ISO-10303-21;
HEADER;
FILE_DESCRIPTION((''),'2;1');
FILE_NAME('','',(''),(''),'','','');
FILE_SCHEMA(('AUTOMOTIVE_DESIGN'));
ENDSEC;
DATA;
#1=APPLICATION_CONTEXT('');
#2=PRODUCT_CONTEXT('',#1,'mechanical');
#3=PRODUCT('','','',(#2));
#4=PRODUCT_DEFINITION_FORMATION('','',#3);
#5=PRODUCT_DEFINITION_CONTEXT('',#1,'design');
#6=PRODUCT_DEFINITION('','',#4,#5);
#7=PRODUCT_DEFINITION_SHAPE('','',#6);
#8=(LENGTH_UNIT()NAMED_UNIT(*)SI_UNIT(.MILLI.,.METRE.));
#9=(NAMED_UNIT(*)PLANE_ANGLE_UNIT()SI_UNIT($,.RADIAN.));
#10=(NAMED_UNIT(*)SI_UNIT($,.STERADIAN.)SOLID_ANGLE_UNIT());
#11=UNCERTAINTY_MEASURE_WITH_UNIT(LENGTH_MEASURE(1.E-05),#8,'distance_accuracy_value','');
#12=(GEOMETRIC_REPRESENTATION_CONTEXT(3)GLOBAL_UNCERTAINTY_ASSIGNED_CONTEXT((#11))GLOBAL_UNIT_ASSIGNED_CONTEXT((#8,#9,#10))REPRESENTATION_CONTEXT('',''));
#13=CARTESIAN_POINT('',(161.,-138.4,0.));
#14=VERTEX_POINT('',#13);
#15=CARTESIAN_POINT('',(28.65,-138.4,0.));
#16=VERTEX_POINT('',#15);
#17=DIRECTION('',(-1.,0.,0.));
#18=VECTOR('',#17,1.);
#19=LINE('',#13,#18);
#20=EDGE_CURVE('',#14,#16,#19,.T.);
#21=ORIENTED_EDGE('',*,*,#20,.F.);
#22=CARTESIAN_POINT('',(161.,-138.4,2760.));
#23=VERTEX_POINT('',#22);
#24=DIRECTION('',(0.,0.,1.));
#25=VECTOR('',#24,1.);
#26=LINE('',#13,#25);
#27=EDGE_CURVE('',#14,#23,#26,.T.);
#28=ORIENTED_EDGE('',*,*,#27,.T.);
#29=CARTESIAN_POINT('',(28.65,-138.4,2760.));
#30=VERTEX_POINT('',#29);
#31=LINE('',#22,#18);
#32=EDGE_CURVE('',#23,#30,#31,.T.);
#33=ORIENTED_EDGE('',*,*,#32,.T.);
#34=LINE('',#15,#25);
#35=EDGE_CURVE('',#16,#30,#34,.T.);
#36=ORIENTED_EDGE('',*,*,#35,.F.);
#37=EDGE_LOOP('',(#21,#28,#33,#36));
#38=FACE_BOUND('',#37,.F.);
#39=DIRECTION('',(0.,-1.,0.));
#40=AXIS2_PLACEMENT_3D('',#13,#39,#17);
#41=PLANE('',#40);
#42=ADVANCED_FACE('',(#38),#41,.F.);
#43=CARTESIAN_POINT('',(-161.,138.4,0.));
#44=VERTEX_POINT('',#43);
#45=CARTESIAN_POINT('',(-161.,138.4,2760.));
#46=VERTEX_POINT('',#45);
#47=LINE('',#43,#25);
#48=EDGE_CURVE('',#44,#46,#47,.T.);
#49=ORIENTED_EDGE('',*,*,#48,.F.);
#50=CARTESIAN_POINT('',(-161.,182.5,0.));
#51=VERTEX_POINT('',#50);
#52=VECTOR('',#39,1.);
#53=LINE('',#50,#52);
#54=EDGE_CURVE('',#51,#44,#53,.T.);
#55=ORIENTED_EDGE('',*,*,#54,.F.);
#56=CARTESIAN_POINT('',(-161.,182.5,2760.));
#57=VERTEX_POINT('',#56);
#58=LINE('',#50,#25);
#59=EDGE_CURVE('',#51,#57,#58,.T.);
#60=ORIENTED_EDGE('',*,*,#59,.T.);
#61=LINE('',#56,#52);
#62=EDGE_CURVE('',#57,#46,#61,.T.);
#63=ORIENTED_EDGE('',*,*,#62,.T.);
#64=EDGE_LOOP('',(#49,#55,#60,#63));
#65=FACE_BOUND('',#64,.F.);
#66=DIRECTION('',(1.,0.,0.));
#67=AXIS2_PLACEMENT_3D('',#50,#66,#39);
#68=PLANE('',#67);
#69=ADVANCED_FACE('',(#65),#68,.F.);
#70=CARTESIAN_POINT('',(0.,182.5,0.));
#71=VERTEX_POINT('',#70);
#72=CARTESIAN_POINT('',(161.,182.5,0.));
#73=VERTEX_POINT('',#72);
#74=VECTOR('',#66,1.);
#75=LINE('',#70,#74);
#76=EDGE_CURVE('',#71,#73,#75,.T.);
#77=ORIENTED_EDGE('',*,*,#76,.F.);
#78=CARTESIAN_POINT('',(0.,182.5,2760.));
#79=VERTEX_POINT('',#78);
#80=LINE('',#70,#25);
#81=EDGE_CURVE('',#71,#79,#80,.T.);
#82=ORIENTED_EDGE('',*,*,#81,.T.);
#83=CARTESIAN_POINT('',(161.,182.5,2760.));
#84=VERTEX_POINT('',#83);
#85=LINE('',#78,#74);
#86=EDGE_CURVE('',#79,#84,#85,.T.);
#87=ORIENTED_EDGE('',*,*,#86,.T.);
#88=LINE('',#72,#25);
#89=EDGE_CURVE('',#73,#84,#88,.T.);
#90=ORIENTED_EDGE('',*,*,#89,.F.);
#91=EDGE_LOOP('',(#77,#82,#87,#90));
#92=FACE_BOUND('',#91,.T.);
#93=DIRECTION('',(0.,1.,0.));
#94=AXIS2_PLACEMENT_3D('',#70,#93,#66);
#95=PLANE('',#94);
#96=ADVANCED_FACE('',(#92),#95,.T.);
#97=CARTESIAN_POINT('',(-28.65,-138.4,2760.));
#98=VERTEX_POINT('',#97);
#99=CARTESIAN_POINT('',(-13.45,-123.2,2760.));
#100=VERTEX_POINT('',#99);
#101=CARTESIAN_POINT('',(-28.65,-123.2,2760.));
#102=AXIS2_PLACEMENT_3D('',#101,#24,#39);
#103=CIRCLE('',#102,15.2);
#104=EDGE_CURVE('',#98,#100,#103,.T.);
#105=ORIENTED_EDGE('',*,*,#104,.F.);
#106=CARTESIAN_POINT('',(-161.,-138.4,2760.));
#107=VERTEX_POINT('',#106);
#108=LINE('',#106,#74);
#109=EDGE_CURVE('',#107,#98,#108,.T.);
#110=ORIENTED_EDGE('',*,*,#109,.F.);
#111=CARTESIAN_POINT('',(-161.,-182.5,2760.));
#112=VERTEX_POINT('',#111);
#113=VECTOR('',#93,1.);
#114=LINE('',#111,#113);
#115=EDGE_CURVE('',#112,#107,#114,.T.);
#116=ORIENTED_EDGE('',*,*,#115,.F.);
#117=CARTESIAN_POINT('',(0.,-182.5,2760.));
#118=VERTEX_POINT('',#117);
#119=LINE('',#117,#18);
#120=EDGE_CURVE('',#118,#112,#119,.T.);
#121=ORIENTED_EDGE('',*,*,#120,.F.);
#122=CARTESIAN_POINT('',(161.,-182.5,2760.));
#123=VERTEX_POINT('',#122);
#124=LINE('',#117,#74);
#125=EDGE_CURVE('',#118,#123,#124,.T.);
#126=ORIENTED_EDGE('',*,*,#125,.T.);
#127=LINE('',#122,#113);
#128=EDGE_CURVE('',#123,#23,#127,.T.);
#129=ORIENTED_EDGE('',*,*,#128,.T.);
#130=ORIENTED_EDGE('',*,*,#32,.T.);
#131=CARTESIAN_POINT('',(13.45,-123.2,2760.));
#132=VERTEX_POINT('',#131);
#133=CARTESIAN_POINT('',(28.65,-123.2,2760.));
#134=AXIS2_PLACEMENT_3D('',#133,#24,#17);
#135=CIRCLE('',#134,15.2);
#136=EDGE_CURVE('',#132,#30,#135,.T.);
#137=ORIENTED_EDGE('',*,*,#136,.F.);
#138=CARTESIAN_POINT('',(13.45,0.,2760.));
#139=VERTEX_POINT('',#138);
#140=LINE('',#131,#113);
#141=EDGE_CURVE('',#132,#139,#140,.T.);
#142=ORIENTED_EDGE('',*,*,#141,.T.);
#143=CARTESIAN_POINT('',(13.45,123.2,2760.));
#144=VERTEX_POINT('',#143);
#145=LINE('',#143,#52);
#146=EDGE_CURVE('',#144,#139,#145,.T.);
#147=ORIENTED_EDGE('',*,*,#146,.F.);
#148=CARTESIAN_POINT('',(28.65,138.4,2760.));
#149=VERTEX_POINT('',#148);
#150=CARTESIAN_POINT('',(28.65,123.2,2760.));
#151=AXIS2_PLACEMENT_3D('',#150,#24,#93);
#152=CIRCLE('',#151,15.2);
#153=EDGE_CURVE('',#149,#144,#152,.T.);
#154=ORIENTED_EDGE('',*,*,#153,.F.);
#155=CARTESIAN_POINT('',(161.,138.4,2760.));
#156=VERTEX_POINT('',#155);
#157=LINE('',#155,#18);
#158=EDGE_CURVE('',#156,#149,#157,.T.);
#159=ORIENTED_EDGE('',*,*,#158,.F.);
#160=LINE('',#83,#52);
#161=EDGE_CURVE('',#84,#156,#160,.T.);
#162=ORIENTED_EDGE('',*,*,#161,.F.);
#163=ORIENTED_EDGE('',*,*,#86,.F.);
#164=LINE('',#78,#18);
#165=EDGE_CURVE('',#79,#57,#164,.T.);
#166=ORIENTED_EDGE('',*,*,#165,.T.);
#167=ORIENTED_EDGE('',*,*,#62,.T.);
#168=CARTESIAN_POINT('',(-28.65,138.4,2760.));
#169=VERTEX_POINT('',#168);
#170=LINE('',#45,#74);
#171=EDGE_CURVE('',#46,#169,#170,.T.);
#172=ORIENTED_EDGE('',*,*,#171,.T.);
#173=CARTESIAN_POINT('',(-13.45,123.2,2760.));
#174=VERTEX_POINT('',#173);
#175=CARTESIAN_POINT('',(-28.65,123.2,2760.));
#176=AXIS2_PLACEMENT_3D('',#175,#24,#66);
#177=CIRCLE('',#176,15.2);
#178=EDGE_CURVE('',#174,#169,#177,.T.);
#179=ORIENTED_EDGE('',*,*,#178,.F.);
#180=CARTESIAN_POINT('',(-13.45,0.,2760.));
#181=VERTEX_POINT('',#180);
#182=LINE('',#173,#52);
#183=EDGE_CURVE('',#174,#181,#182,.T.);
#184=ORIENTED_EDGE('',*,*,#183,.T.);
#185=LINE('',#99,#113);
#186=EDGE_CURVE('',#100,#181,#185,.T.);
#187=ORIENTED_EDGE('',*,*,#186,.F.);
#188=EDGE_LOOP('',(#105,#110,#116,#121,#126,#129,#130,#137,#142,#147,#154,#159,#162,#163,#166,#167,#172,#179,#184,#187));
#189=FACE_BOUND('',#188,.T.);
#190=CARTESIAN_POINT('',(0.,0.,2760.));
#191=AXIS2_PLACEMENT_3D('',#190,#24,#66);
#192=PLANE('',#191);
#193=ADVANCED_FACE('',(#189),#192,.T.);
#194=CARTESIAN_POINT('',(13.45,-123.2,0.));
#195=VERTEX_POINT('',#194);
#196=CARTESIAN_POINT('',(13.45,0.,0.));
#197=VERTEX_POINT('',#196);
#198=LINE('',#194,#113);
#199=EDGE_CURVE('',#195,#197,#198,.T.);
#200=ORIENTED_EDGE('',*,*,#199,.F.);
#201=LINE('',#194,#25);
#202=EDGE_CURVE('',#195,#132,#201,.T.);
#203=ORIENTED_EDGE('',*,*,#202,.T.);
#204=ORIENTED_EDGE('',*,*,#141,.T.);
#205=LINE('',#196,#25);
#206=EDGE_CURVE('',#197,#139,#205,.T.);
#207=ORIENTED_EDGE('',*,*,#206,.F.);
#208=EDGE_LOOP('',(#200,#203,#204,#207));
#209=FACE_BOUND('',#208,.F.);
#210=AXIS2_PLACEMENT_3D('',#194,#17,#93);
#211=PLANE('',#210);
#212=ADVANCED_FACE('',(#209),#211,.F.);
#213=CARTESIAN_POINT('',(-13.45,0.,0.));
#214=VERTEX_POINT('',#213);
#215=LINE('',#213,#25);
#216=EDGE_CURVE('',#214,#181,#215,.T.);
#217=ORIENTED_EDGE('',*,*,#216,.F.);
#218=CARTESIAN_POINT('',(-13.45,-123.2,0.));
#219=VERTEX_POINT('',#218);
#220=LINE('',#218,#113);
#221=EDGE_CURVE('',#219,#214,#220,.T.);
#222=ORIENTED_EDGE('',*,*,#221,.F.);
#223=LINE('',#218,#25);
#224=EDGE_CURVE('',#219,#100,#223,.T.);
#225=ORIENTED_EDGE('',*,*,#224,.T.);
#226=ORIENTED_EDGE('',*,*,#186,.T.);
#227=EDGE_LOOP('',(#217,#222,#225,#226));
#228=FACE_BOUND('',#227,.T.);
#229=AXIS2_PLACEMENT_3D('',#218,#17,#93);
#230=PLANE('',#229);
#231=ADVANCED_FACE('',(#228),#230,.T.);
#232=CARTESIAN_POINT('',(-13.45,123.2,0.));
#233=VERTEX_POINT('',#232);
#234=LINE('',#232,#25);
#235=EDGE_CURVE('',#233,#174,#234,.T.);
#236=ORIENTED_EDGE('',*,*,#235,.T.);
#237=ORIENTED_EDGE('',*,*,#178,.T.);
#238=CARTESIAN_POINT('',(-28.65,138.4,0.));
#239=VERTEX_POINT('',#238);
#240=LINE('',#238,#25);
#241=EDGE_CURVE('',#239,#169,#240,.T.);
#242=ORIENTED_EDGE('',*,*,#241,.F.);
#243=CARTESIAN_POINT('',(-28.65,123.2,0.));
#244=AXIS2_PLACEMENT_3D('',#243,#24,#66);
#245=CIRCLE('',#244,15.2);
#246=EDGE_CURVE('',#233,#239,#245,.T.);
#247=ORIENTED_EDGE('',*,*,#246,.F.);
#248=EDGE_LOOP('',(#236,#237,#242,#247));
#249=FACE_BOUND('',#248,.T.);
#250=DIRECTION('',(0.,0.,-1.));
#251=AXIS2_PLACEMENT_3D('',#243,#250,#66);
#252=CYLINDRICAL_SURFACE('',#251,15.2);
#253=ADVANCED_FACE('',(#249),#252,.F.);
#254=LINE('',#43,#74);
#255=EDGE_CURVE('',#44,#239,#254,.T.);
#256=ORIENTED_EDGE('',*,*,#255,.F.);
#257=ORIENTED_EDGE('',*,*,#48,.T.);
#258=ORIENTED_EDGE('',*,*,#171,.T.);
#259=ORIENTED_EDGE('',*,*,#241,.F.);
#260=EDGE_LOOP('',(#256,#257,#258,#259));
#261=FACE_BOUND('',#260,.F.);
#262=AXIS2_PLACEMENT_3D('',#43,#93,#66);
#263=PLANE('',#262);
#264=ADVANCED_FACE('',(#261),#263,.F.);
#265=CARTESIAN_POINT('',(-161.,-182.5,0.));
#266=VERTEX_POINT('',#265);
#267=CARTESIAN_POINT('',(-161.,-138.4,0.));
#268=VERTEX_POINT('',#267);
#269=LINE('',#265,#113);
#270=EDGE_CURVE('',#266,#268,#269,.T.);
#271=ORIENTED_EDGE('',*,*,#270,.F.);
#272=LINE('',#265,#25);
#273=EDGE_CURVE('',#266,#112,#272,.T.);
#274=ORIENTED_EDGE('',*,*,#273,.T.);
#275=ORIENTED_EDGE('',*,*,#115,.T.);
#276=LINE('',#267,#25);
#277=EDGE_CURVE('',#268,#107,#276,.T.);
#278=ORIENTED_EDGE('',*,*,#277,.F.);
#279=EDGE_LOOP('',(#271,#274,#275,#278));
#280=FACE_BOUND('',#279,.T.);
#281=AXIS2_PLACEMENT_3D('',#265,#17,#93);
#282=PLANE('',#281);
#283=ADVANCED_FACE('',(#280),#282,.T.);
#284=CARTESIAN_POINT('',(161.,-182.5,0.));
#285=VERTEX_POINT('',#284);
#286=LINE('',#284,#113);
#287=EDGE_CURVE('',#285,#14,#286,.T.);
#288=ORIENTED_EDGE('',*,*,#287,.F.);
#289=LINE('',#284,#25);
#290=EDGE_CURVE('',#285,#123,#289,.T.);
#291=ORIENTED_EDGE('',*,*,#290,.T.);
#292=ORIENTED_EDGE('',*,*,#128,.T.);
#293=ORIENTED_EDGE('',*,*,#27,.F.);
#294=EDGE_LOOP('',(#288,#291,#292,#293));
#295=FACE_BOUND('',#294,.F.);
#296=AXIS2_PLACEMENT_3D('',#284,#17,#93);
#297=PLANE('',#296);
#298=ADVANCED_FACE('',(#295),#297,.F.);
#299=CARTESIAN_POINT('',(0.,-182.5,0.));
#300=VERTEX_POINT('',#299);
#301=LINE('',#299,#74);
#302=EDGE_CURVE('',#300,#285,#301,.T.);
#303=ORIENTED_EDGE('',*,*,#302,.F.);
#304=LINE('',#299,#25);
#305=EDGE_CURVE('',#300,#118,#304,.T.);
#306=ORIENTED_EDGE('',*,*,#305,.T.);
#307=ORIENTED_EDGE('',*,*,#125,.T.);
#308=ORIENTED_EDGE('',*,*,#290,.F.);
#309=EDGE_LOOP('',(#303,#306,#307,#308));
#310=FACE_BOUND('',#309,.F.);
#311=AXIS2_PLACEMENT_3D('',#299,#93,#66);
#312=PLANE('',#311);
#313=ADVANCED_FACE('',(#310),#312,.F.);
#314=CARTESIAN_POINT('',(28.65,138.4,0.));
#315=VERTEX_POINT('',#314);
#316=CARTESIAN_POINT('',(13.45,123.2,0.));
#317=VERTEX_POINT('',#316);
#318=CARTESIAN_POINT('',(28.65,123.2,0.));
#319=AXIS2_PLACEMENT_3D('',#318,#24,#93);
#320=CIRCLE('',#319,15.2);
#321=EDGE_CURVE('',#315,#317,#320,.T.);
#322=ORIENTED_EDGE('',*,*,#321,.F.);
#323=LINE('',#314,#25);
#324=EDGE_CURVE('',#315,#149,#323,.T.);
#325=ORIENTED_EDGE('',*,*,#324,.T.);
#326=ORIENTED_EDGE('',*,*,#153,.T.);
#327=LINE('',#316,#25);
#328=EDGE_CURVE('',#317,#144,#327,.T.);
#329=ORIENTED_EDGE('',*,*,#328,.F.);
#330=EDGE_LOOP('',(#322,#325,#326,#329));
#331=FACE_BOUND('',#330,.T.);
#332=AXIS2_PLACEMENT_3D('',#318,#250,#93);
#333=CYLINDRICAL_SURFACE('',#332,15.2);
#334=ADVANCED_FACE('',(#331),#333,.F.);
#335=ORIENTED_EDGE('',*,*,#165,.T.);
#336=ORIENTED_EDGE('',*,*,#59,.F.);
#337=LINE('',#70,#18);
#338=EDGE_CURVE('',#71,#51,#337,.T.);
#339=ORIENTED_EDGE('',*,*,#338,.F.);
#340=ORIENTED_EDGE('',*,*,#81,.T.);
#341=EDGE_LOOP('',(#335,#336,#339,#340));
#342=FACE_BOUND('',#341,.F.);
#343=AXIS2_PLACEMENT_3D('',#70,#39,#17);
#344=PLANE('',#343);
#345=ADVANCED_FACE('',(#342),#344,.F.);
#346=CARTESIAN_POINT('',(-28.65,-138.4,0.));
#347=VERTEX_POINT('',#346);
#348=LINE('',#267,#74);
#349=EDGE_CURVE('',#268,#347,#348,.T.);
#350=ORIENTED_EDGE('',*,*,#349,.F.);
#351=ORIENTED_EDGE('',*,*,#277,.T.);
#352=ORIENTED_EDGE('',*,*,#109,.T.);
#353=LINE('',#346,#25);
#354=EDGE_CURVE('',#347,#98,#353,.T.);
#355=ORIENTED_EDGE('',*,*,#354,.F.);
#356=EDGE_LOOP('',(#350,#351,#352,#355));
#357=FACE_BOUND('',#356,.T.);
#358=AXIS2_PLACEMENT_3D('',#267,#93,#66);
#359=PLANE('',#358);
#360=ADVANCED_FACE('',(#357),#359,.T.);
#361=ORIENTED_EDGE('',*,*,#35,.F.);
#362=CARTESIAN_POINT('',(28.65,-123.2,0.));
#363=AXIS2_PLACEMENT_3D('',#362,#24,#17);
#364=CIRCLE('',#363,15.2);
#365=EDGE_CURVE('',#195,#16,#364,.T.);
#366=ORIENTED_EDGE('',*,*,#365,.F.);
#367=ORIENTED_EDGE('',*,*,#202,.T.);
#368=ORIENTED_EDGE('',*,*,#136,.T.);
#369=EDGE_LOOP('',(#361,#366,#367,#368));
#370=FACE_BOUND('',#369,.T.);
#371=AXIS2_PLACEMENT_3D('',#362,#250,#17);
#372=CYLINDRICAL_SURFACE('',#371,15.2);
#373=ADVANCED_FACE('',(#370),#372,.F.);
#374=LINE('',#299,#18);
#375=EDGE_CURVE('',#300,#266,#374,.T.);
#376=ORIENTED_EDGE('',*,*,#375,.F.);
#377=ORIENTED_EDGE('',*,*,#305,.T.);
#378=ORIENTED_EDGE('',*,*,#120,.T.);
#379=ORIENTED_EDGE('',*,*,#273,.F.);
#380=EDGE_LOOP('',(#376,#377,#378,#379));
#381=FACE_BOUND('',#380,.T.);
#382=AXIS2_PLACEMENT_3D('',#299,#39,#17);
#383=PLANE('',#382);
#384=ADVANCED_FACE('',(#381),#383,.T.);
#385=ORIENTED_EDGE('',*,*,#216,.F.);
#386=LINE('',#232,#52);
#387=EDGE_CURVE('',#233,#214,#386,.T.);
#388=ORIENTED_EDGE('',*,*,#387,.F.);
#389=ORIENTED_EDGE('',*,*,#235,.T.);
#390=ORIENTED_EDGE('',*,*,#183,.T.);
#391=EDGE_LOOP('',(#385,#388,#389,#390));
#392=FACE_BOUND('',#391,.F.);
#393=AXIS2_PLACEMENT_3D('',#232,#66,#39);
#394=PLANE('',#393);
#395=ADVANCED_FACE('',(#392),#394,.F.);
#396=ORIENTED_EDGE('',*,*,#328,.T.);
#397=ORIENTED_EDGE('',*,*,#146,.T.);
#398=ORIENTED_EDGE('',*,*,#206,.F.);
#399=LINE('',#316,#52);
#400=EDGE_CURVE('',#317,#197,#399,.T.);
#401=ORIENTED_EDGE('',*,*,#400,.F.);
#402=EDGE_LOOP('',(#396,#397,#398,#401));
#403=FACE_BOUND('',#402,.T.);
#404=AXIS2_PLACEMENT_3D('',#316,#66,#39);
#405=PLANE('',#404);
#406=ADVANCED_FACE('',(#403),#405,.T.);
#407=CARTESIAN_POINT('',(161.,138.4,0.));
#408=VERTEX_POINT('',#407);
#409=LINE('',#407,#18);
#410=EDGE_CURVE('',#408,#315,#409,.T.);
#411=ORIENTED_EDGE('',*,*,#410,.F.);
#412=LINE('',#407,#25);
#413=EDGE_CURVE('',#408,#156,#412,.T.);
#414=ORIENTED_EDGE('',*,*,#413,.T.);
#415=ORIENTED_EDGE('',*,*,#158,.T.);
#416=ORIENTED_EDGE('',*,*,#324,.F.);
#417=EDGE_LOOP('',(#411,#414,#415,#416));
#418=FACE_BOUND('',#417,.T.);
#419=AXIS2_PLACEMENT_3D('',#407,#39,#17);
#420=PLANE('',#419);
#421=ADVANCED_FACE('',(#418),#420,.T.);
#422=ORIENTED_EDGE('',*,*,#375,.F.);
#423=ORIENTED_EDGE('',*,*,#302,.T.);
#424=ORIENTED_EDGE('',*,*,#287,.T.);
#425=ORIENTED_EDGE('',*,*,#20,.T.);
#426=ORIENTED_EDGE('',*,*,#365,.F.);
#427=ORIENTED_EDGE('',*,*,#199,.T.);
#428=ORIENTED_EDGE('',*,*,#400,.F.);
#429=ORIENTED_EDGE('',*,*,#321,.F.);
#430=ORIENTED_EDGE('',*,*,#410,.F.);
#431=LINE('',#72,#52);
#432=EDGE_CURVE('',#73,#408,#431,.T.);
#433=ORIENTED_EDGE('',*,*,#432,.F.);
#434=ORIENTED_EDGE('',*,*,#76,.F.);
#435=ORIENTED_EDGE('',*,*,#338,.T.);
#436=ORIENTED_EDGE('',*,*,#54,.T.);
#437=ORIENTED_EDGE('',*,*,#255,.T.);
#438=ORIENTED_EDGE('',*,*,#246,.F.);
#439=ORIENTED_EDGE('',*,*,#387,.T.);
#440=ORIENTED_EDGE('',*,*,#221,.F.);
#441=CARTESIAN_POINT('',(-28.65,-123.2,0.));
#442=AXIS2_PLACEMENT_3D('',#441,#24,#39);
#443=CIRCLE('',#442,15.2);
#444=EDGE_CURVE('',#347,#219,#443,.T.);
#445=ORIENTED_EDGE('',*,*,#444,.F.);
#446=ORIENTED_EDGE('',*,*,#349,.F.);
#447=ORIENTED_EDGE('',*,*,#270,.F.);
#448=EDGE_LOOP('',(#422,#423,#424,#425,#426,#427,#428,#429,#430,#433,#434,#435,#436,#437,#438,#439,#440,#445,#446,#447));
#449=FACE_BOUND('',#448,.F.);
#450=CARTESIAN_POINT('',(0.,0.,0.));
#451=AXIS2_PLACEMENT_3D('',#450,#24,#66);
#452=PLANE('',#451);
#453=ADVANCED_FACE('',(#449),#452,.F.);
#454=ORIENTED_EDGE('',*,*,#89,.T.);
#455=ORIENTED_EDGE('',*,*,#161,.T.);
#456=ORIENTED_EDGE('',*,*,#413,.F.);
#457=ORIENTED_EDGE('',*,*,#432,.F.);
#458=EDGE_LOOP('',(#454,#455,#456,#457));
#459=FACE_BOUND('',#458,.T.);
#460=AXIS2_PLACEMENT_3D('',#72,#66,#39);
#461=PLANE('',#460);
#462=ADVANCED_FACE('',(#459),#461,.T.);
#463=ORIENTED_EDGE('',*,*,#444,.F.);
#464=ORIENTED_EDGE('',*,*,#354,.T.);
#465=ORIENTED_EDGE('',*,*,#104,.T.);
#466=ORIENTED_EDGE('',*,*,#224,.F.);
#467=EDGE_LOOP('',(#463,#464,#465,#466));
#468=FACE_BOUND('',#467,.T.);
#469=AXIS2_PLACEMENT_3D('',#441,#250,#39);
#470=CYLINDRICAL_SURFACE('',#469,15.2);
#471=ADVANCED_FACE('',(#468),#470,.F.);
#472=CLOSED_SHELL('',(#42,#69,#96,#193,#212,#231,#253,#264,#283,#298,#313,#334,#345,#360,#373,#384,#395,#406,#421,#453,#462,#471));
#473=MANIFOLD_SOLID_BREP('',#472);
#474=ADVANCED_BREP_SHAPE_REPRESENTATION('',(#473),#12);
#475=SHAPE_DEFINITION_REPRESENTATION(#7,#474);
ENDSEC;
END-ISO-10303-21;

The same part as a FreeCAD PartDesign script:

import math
import FreeCAD as App
import Part
import Sketcher

doc = App.newDocument("Part")
body = doc.addObject("PartDesign::Body", "Body")

# Sketch on XY plane
sketch1 = body.newObject("Sketcher::SketchObject", "Sketch")
sketch1.AttachmentSupport = (doc.getObject("XY_Plane"), [""])
sketch1.MapMode = "FlatFace"
sketch1.addGeometry(Part.LineSegment(App.Vector(-161, -138, 0), App.Vector(-161, -182, 0)), False)
sketch1.addGeometry(Part.LineSegment(App.Vector(-161, -182, 0), App.Vector(161, -182, 0)), False)
sketch1.addGeometry(Part.LineSegment(App.Vector(161, -182, 0), App.Vector(161, -138, 0)), False)
sketch1.addGeometry(Part.LineSegment(App.Vector(161, -138, 0), App.Vector(29, -138, 0)), False)
sketch1.addGeometry(Part.ArcOfCircle(Part.Circle(App.Vector(29, -123, 0), App.Vector(0, 0, 1), 15), math.radians(180), math.radians(270)), False)
sketch1.addGeometry(Part.LineSegment(App.Vector(13, -123, 0), App.Vector(13, 123, 0)), False)
sketch1.addGeometry(Part.ArcOfCircle(Part.Circle(App.Vector(29, 123, 0), App.Vector(0, 0, 1), 15), math.radians(90), math.radians(180)), False)
sketch1.addGeometry(Part.LineSegment(App.Vector(29, 138, 0), App.Vector(161, 138, 0)), False)
sketch1.addGeometry(Part.LineSegment(App.Vector(161, 138, 0), App.Vector(161, 182, 0)), False)
sketch1.addGeometry(Part.LineSegment(App.Vector(161, 182, 0), App.Vector(-161, 182, 0)), False)
sketch1.addGeometry(Part.LineSegment(App.Vector(-161, 182, 0), App.Vector(-161, 138, 0)), False)
sketch1.addGeometry(Part.LineSegment(App.Vector(-161, 138, 0), App.Vector(-29, 138, 0)), False)
sketch1.addGeometry(Part.ArcOfCircle(Part.Circle(App.Vector(-29, 123, 0), App.Vector(0, 0, 1), 15), math.radians(0), math.radians(90)), False)
sketch1.addGeometry(Part.LineSegment(App.Vector(-13, 123, 0), App.Vector(-13, -123, 0)), False)
sketch1.addGeometry(Part.ArcOfCircle(Part.Circle(App.Vector(-29, -123, 0), App.Vector(0, 0, 1), 15), math.radians(-90), math.radians(0)), False)
sketch1.addGeometry(Part.LineSegment(App.Vector(-29, -138, 0), App.Vector(-161, -138, 0)), False)
sketch1.addConstraint(Sketcher.Constraint("Coincident", 0, 2, 1, 1))
sketch1.addConstraint(Sketcher.Constraint("Coincident", 1, 2, 2, 1))
sketch1.addConstraint(Sketcher.Constraint("Coincident", 2, 2, 3, 1))
sketch1.addConstraint(Sketcher.Constraint("Tangent", 3, 2, 4, 2))
sketch1.addConstraint(Sketcher.Constraint("Tangent", 4, 1, 5, 1))
sketch1.addConstraint(Sketcher.Constraint("Tangent", 5, 2, 6, 2))
sketch1.addConstraint(Sketcher.Constraint("Tangent", 6, 1, 7, 1))
sketch1.addConstraint(Sketcher.Constraint("Coincident", 7, 2, 8, 1))
sketch1.addConstraint(Sketcher.Constraint("Coincident", 8, 2, 9, 1))
sketch1.addConstraint(Sketcher.Constraint("Coincident", 9, 2, 10, 1))
sketch1.addConstraint(Sketcher.Constraint("Coincident", 10, 2, 11, 1))
sketch1.addConstraint(Sketcher.Constraint("Tangent", 11, 2, 12, 2))
sketch1.addConstraint(Sketcher.Constraint("Tangent", 12, 1, 13, 1))
sketch1.addConstraint(Sketcher.Constraint("Tangent", 13, 2, 14, 2))
sketch1.addConstraint(Sketcher.Constraint("Tangent", 14, 1, 15, 1))
sketch1.addConstraint(Sketcher.Constraint("Coincident", 15, 2, 0, 1))
sketch1.addConstraint(Sketcher.Constraint("Vertical", 0))
sketch1.addConstraint(Sketcher.Constraint("Horizontal", 1))
sketch1.addConstraint(Sketcher.Constraint("Vertical", 2))
sketch1.addConstraint(Sketcher.Constraint("Horizontal", 3))
sketch1.addConstraint(Sketcher.Constraint("Vertical", 5))
sketch1.addConstraint(Sketcher.Constraint("Horizontal", 7))
sketch1.addConstraint(Sketcher.Constraint("Vertical", 8))
sketch1.addConstraint(Sketcher.Constraint("Horizontal", 9))
sketch1.addConstraint(Sketcher.Constraint("Vertical", 10))
sketch1.addConstraint(Sketcher.Constraint("Horizontal", 11))
sketch1.addConstraint(Sketcher.Constraint("Vertical", 13))
sketch1.addConstraint(Sketcher.Constraint("Horizontal", 15))
sketch1.addConstraint(Sketcher.Constraint("Equal", 4, 6))
sketch1.addConstraint(Sketcher.Constraint("Equal", 6, 12))
sketch1.addConstraint(Sketcher.Constraint("Equal", 12, 14))
sketch1.addConstraint(Sketcher.Constraint("Symmetric", 4, 3, 12, 3, -1, 1))
sketch1.addConstraint(Sketcher.Constraint("Symmetric", 0, 2, 8, 2, -1, 1))
sketch1.addConstraint(Sketcher.Constraint("Symmetric", 7, 2, 10, 2, -2))
sketch1.addConstraint(Sketcher.Constraint("Symmetric", 2, 2, 15, 2, -2))
sketch1.addConstraint(Sketcher.Constraint("Radius", 4, 15.2))
sketch1.addConstraint(Sketcher.Constraint("DistanceY", 0, 2, 0, 1, 44.1))
sketch1.addConstraint(Sketcher.Constraint("DistanceX", 0, 2, -1, 1, 161.0))
sketch1.addConstraint(Sketcher.Constraint("DistanceY", 0, 2, -1, 1, 182.5))
sketch1.addConstraint(Sketcher.Constraint("DistanceX", -1, 1, 4, 1, 13.45))
pad1 = body.newObject("PartDesign::Pad", "Pad")
pad1.Profile = sketch1
pad1.Length = 2760

doc.recompute()
